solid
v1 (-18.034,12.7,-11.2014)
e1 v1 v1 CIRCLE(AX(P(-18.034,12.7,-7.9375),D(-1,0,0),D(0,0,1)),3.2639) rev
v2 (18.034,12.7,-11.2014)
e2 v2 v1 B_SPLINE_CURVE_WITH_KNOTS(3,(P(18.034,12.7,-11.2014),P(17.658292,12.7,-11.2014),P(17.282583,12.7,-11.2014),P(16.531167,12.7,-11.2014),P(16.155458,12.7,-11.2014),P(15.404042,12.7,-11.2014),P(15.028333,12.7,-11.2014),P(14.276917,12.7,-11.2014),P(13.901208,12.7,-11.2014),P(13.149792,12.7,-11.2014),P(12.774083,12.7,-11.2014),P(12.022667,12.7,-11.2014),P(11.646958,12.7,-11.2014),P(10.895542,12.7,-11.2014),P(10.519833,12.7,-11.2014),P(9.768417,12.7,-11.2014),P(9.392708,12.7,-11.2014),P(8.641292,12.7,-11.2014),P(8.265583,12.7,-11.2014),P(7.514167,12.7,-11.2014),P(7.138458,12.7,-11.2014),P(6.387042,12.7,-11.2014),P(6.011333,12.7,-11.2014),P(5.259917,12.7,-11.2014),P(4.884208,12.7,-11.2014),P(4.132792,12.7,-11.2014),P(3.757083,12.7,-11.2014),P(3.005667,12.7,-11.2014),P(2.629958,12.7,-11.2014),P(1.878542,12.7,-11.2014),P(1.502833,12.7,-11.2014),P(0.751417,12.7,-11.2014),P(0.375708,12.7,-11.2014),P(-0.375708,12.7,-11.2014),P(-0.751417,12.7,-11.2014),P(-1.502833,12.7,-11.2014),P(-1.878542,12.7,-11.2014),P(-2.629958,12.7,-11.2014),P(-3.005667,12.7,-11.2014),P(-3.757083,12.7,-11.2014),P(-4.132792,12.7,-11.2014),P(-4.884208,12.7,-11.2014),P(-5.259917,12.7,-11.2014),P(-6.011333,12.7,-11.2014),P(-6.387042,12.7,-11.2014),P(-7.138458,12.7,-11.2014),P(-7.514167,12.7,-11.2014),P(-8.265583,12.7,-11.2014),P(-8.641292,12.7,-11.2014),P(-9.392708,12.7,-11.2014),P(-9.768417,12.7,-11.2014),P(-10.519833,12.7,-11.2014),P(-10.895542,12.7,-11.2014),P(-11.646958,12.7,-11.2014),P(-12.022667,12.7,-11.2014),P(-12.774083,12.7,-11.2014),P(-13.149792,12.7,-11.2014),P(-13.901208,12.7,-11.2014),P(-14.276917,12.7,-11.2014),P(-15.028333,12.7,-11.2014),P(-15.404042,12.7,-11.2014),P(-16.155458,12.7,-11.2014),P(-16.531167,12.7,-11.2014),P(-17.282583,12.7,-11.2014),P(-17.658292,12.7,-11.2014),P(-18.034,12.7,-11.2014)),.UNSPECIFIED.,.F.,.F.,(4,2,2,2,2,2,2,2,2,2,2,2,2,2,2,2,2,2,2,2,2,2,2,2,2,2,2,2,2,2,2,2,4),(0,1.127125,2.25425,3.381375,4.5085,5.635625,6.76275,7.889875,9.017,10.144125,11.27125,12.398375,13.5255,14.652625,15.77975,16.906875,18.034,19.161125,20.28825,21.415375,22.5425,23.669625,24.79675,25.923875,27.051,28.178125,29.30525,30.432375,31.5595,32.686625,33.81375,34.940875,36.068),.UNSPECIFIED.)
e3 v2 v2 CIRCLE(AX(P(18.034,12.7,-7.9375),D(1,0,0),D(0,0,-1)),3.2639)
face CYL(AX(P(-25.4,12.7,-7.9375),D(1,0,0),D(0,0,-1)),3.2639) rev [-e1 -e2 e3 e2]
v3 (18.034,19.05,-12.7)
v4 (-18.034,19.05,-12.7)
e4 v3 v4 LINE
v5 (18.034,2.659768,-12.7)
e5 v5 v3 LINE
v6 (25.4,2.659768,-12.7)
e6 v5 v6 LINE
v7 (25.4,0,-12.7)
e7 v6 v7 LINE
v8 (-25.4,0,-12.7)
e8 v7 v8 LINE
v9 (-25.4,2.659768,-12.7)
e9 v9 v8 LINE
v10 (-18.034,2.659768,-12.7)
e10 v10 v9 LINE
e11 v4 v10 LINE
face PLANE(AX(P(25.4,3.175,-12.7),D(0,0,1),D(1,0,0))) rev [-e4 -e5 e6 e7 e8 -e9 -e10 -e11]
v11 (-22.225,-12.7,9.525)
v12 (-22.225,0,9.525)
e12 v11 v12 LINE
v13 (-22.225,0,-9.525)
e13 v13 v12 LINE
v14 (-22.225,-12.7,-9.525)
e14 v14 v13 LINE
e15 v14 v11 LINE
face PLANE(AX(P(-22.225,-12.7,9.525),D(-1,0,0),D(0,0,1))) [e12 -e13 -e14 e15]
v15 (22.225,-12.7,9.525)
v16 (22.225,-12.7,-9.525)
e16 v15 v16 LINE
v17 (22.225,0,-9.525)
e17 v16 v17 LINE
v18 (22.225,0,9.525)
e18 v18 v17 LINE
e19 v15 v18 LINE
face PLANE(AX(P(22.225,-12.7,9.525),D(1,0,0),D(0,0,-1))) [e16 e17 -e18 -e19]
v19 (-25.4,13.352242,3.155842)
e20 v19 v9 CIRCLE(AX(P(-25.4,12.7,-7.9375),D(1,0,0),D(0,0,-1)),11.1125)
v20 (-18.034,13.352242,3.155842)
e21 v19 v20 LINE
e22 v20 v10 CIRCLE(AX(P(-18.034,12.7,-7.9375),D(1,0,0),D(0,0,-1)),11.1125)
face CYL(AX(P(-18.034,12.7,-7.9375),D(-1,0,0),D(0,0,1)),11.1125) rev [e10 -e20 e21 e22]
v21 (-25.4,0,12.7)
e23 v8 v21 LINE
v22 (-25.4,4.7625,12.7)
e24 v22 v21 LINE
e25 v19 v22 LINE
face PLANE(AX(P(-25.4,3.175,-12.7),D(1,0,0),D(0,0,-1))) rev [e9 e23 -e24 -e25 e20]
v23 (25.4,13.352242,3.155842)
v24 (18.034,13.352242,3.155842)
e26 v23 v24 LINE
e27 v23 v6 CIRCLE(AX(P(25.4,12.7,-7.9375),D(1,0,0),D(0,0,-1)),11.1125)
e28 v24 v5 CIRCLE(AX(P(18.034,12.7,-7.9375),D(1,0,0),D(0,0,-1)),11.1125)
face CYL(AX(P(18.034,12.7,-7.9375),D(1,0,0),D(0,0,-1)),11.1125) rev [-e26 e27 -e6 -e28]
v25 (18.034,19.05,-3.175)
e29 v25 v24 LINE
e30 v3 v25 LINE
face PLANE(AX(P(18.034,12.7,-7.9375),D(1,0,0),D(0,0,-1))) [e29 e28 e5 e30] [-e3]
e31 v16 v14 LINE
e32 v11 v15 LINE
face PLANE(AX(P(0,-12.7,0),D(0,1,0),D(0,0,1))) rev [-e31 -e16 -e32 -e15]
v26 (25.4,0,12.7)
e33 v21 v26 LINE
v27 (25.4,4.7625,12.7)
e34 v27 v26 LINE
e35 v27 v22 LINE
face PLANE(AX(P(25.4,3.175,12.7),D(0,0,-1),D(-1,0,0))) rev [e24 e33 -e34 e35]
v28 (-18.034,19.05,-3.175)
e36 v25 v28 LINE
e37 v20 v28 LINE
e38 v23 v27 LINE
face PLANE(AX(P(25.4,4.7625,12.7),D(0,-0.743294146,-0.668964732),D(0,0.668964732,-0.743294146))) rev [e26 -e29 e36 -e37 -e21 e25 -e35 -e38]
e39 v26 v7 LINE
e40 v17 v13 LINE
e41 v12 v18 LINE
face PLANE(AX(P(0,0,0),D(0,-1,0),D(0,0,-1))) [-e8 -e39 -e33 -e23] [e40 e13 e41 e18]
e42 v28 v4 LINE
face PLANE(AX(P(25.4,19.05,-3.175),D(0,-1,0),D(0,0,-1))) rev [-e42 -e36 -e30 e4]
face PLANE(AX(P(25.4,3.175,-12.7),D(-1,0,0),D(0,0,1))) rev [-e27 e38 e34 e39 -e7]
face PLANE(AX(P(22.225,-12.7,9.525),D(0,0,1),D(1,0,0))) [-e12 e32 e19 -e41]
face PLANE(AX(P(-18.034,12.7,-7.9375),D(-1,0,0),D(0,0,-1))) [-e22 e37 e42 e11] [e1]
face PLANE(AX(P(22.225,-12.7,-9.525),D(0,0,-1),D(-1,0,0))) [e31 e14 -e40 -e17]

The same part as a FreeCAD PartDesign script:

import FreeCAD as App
import Part
import Sketcher
Q = App.Units.Quantity


def add_polygon(sketch, points):
    """Adds a closed chain of lines whose ends are joined by coincident constraints."""
    first, n = sketch.GeometryCount, len(points)
    for a, b in zip(points, points[1:] + points[:1]):
        sketch.addGeometry(Part.LineSegment(App.Vector(*a, 0), App.Vector(*b, 0)), False)
    for i in range(n):
        sketch.addConstraint(Sketcher.Constraint("Coincident", first + i, 2, first + (i + 1) % n, 1))

doc = App.newDocument("Part")
params = doc.addObject("Spreadsheet::Sheet", "Params")
for row, (alias, value) in enumerate([
    ("sketch1_width", "1.75 in"),
    ("sketch1_height", "0.75 in"),
    ("pad1_length", "0.5 in"),
    ("sketch2_width", "2 in"),
    ("sketch2_height", "1 in"),
    ("pad2_length", "0.125 in"),
    ("sketch3_height", "1 in"),
    ("sketch3_width", "0.0625 in"),
    ("sketch3_width2", "0.625 in"),
    ("sketch3_height2", "0.375 in"),
    ("pad3_length", "2 in"),
    ("sketch4_diameter", "0.875 in"),
    ("pocket1_length", "0.29 in"),
    ("sketch5_diameter", "0.257 in"),
], start=1):
    params.set(f"A{row}", alias)
    params.set(f"B{row}", "=" + value)
    params.setAlias(f"B{row}", alias)

body = doc.addObject("PartDesign::Body", "Body")

# Sketch on XZ plane
sketch1 = body.newObject("Sketcher::SketchObject", "Sketch")
sketch1.AttachmentSupport = (doc.getObject("XZ_Plane"), [""])
sketch1.MapMode = "FlatFace"
add_polygon(sketch1, [(-22, -10), (-22, 10), (22, 10), (22, -10)])  # lines 0-3
sketch1.addConstraint([
    Sketcher.Constraint("Vertical", 0),
    Sketcher.Constraint("Horizontal", 1),
    Sketcher.Constraint("Vertical", 2),
    Sketcher.Constraint("Horizontal", 3),
    Sketcher.Constraint("Symmetric", 0, 2, 2, 2, -1, 1),
    Sketcher.Constraint("DistanceX", 1, 1, 1, 2, Q("1.75 in")),
    Sketcher.Constraint("DistanceY", 0, 1, 0, 2, Q("0.75 in")),
])
sketch1.setExpression("Constraints[9]", "Params.sketch1_width")
sketch1.setExpression("Constraints[10]", "Params.sketch1_height")
pad1 = body.newObject("PartDesign::Pad", "Pad")
pad1.Profile = sketch1
pad1.setExpression("Length", "Params.pad1_length")

# Sketch on XZ plane
sketch2 = body.newObject("Sketcher::SketchObject", "Sketch001")
sketch2.AttachmentSupport = (doc.getObject("XZ_Plane"), [""])
sketch2.MapMode = "FlatFace"
add_polygon(sketch2, [(-25, -13), (-25, 13), (25, 13), (25, -13)])  # lines 0-3
sketch2.addConstraint([
    Sketcher.Constraint("Vertical", 0),
    Sketcher.Constraint("Horizontal", 1),
    Sketcher.Constraint("Vertical", 2),
    Sketcher.Constraint("Horizontal", 3),
    Sketcher.Constraint("Symmetric", 0, 2, 2, 2, -1, 1),
    Sketcher.Constraint("DistanceX", 1, 1, 1, 2, Q("2 in")),
    Sketcher.Constraint("DistanceY", 0, 1, 0, 2, Q("1 in")),
])
sketch2.setExpression("Constraints[9]", "Params.sketch2_width")
sketch2.setExpression("Constraints[10]", "Params.sketch2_height")
pad2 = body.newObject("PartDesign::Pad", "Pad001")
pad2.Profile = sketch2
pad2.setExpression("Length", "Params.pad2_length")
pad2.Reversed = True

# Sketch on YZ plane
sketch3 = body.newObject("Sketcher::SketchObject", "Sketch002")
sketch3.AttachmentSupport = (doc.getObject("YZ_Plane"), [""])
sketch3.MapMode = "FlatFace"
add_polygon(sketch3, [(4.8, 12.7), (3.2, 12.7), (3.2, -12.7), (19.1, -12.7), (19.1, -3.2)])  # lines 0-4
sketch3.addConstraint([
    Sketcher.Constraint("Horizontal", 0),
    Sketcher.Constraint("Vertical", 1),
    Sketcher.Constraint("Horizontal", 2),
    Sketcher.Constraint("Vertical", 3),
    Sketcher.Constraint("DistanceY", 1, 2, 1, 1, Q("1 in")),
    Sketcher.Constraint("DistanceY", -1, 1, 0, 2, Q("0.5 in")),
    Sketcher.Constraint("DistanceX", 0, 2, 0, 1, Q("0.0625 in")),
    Sketcher.Constraint("DistanceX", 2, 1, 2, 2, Q("0.625 in")),
    Sketcher.Constraint("DistanceY", 3, 1, 3, 2, Q("0.375 in")),
    Sketcher.Constraint("DistanceX", -1, 1, 2, 2, Q("0.75 in")),
])
sketch3.setExpression("Constraints[9]", "Params.sketch3_height")
sketch3.setExpression("Constraints[11]", "Params.sketch3_width")
sketch3.setExpression("Constraints[12]", "Params.sketch3_width2")
sketch3.setExpression("Constraints[13]", "Params.sketch3_height2")
pad3 = body.newObject("PartDesign::Pad", "Pad002")
pad3.Profile = sketch3
pad3.setExpression("Length", "Params.pad3_length")
pad3.Midplane = True

# Sketch on YZ plane
sketch4 = body.newObject("Sketcher::SketchObject", "Sketch003")
sketch4.AttachmentSupport = (doc.getObject("YZ_Plane"), [""])
sketch4.MapMode = "FlatFace"
sketch4.AttachmentOffset = App.Placement(App.Vector(0, 0, 1 * 25.4), App.Rotation())
sketch4.addGeometry(Part.Circle(App.Vector(13, -8, 0), App.Vector(0, 0, 1), 11), False)
sketch4.addConstraint([
    Sketcher.Constraint("Diameter", 0, Q("0.875 in")),
    Sketcher.Constraint("DistanceX", -1, 1, 0, 3, Q("0.5 in")),
    Sketcher.Constraint("DistanceY", 0, 3, -1, 1, Q("0.3125 in")),
])
sketch4.setExpression("Constraints[0]", "Params.sketch4_diameter")
pocket1 = body.newObject("PartDesign::Pocket", "Pocket")
pocket1.Profile = sketch4
pocket1.setExpression("Length", "Params.pocket1_length")

# Sketch on YZ plane
sketch5 = body.newObject("Sketcher::SketchObject", "Sketch004")
sketch5.AttachmentSupport = (doc.getObject("YZ_Plane"), [""])
sketch5.MapMode = "FlatFace"
sketch5.AttachmentOffset = App.Placement(App.Vector(0, 0, 0.71 * 25.4), App.Rotation())
sketch5.addGeometry(Part.Circle(App.Vector(12.7, -7.9, 0), App.Vector(0, 0, 1), 3.3), False)
sketch5.addConstraint([
    Sketcher.Constraint("Diameter", 0, Q("0.257 in")),
    Sketcher.Constraint("DistanceX", -1, 1, 0, 3, Q("0.5 in")),
    Sketcher.Constraint("DistanceY", 0, 3, -1, 1, Q("0.3125 in")),
])
sketch5.setExpression("Constraints[0]", "Params.sketch5_diameter")
pocket2 = body.newObject("PartDesign::Pocket", "Pocket001")
pocket2.Profile = sketch5
pocket2.Type = "ThroughAll"
doc.recompute()

mirrored = body.newObject("PartDesign::Mirrored", "Mirrored")
mirrored.Originals = [pocket1]
mirrored.MirrorPlane = (doc.getObject("YZ_Plane"), [""])
body.Tip = mirrored

doc.recompute()
